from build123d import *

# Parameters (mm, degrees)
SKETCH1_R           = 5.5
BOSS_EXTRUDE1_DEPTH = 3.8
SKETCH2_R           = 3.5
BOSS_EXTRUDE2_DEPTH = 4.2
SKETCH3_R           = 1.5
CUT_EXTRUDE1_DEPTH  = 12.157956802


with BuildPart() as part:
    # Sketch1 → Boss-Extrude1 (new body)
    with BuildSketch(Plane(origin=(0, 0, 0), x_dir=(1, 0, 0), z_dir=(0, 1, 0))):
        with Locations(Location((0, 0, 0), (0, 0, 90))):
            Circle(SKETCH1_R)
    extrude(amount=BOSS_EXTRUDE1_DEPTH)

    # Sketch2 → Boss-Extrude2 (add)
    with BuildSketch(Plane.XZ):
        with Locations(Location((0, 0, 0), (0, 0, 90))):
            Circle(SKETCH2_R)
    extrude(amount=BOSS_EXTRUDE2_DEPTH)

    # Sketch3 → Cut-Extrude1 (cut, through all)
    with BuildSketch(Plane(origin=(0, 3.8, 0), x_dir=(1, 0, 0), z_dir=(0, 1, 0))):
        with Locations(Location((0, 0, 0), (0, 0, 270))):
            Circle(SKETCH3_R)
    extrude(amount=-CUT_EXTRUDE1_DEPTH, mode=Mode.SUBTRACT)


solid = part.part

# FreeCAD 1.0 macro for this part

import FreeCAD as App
import Part
import Sketcher

V = App.Vector

doc = App.newDocument("Part")
body = doc.addObject("PartDesign::Body", "Body")

sketch1 = body.newObject("Sketcher::SketchObject", "Sketch")
sketch1.AttachmentSupport = (doc.getObject("XZ_Plane"), [""])
sketch1.MapMode = "FlatFace"
sketch1.addGeometry(Part.Circle(V(0, 0, 0), V(0, 0, 1), 6), False)
sketch1.addConstraint(Sketcher.Constraint("Coincident", 0, 3, -1, 1))
sketch1.addConstraint(Sketcher.Constraint("Diameter", 0, 11.0))
pad1 = body.newObject("PartDesign::Pad", "Pad")
pad1.Profile = sketch1
pad1.Length = 3.8
pad1.Reversed = True

sketch2 = body.newObject("Sketcher::SketchObject", "Sketch001")
sketch2.AttachmentSupport = (doc.getObject("XZ_Plane"), [""])
sketch2.MapMode = "FlatFace"
sketch2.addGeometry(Part.Circle(V(0, 0, 0), V(0, 0, 1), 3.5), False)
sketch2.addConstraint(Sketcher.Constraint("Coincident", 0, 3, -1, 1))
sketch2.addConstraint(Sketcher.Constraint("Diameter", 0, 7.0))
pad2 = body.newObject("PartDesign::Pad", "Pad001")
pad2.Profile = sketch2
pad2.Length = 4.2

sketch3 = body.newObject("Sketcher::SketchObject", "Sketch002")
sketch3.AttachmentSupport = (doc.getObject("XZ_Plane"), [""])
sketch3.MapMode = "FlatFace"
sketch3.AttachmentOffset = App.Placement(V(0, 0, -3.8), App.Rotation())
sketch3.addGeometry(Part.Circle(V(0, 0, 0), V(0, 0, 1), 1.5), False)
sketch3.addConstraint(Sketcher.Constraint("Coincident", 0, 3, -1, 1))
sketch3.addConstraint(Sketcher.Constraint("Diameter", 0, 3.0))
pocket1 = body.newObject("PartDesign::Pocket", "Pocket")
pocket1.Profile = sketch3
pocket1.Type = "ThroughAll"
pocket1.Reversed = True

doc.recompute()
